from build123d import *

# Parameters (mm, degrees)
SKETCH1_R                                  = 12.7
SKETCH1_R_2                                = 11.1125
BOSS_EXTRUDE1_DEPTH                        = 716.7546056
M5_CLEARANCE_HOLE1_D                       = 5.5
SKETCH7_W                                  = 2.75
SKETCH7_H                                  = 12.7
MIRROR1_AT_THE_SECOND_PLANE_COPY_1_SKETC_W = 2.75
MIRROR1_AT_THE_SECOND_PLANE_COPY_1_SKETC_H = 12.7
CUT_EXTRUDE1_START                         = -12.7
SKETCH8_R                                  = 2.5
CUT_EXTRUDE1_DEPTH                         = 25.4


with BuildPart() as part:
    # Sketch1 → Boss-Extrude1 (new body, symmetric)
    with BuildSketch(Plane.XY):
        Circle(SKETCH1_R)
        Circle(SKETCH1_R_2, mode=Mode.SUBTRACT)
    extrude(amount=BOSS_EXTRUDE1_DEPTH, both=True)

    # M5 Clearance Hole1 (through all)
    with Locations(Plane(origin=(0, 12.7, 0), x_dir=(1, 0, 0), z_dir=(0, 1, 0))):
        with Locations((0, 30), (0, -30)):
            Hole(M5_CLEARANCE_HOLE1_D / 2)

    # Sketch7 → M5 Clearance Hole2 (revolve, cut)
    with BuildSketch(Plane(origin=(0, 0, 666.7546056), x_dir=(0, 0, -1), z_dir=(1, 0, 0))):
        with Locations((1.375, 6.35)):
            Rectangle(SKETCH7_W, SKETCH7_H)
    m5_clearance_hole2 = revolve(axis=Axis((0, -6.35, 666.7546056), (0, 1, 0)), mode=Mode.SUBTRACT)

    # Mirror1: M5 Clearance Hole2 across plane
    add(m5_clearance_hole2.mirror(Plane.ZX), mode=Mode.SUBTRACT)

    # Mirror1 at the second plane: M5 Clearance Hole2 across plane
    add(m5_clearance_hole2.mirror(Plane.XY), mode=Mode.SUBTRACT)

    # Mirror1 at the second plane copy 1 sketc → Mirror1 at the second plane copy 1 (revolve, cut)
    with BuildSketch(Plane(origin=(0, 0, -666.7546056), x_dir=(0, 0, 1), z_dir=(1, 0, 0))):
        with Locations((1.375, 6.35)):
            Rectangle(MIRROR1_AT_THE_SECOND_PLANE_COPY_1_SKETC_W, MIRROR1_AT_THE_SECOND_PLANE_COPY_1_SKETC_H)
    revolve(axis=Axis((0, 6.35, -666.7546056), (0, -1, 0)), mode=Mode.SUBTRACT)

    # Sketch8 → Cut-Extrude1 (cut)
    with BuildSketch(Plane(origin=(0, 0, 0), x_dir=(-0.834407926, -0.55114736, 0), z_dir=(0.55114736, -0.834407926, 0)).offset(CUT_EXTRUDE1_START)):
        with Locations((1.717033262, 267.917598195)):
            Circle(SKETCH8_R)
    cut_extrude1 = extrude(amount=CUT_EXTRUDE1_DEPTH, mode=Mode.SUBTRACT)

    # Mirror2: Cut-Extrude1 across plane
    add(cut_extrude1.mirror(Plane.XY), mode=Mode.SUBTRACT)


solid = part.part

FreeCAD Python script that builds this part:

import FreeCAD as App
import Part
import Sketcher

V = App.Vector
Q = App.Units.Quantity

doc = App.newDocument("Part")
body = doc.addObject("PartDesign::Body", "Body")

# Sketch on XY plane
sketch1 = body.newObject("Sketcher::SketchObject", "Sketch")
sketch1.AttachmentSupport = (doc.getObject("XY_Plane"), [""])
sketch1.MapMode = "FlatFace"
sketch1.addGeometry([
    Part.Circle(V(0, 0, 0), V(0, 0, 1), 13),
    Part.Circle(V(0, 0, 0), V(0, 0, 1), 11),
], False)
sketch1.addConstraint([
    Sketcher.Constraint("Coincident", 0, 3, -1, 1),
    Sketcher.Constraint("Coincident", 1, 3, -1, 1),
    Sketcher.Constraint("Diameter", 0, Q("1 in")),
    Sketcher.Constraint("Diameter", 1, Q("0.875 in")),
])
pad1 = body.newObject("PartDesign::Pad", "Pad")
pad1.Profile = sketch1
pad1.Length = 1433.509211
pad1.Midplane = True

# Sketch on XZ plane
sketch2 = body.newObject("Sketcher::SketchObject", "Sketch001")
sketch2.AttachmentSupport = (doc.getObject("XZ_Plane"), [""])
sketch2.MapMode = "FlatFace"
sketch2.AttachmentOffset = App.Placement(V(0, 0, -0.5 * 25.4), App.Rotation())
sketch2.addGeometry([
    Part.Circle(V(0, -30, 0), V(0, 0, 1), 2.8),
    Part.Circle(V(0, 30, 0), V(0, 0, 1), 2.8),
], False)
sketch2.addConstraint([
    Sketcher.Constraint("Equal", 0, 1),
    Sketcher.Constraint("Symmetric", 0, 3, 1, 3, -1, 1),
    Sketcher.Constraint("PointOnObject", 0, 3, -2),
    Sketcher.Constraint("Diameter", 0, Q("5.5 mm")),
    Sketcher.Constraint("DistanceY", 0, 3, -1, 1, Q("30 mm")),
])
doc.recompute()
hole = body.newObject("PartDesign::Hole", "Hole")
hole.Profile = sketch2
hole.ThreadType = "None"
hole.Diameter = 5.5
hole.DepthType = "ThroughAll"
hole.Reversed = True

# Sketch on YZ plane
sketch3 = body.newObject("Sketcher::SketchObject", "Sketch002")
sketch3.AttachmentSupport = (doc.getObject("YZ_Plane"), [""])
sketch3.MapMode = "FlatFace"
sketch3.addGeometry([
    Part.LineSegment(V(12.7, 666.8, 0), V(0, 666.8, 0)),
    Part.LineSegment(V(0, 666.8, 0), V(0, 664, 0)),
    Part.LineSegment(V(0, 664, 0), V(12.7, 664, 0)),
    Part.LineSegment(V(12.7, 664, 0), V(12.7, 666.8, 0)),
], False)
sketch3.addGeometry(Part.LineSegment(V(0, 666.8, 0), V(12.7, 666.8, 0)), True)  # axis
sketch3.addConstraint([
    Sketcher.Constraint("Coincident", 0, 2, 1, 1),
    Sketcher.Constraint("Coincident", 1, 2, 2, 1),
    Sketcher.Constraint("Coincident", 2, 2, 3, 1),
    Sketcher.Constraint("Coincident", 3, 2, 0, 1),
    Sketcher.Constraint("Horizontal", 0),
    Sketcher.Constraint("Vertical", 1),
    Sketcher.Constraint("Horizontal", 2),
    Sketcher.Constraint("Vertical", 3),
    Sketcher.Constraint("Horizontal", 4),
    Sketcher.Constraint("Coincident", 4, 1, 0, 2),
    Sketcher.Constraint("PointOnObject", 0, 2, -2),
    Sketcher.Constraint("Vertical", 2, 2, 4, 2),
    Sketcher.Constraint("DistanceX", 0, 2, 0, 1, Q("0.5 in")),
    Sketcher.Constraint("DistanceY", 1, 2, 1, 1, Q("2.75 mm")),
    Sketcher.Constraint("DistanceY", -1, 1, 0, 2, Q("666.754606 mm")),
])
groove = body.newObject("PartDesign::Groove", "Groove")
groove.Profile = sketch3
groove.ReferenceAxis = (sketch3, ["Axis0"])
groove.Angle = 360
doc.recompute()

mirrored = body.newObject("PartDesign::Mirrored", "Mirrored")
mirrored.Originals = [groove]
mirrored.MirrorPlane = (doc.getObject("XZ_Plane"), [""])
body.Tip = mirrored
doc.recompute()

mirrored2 = body.newObject("PartDesign::Mirrored", "Mirrored001")
mirrored2.Originals = [groove]
mirrored2.MirrorPlane = (doc.getObject("XY_Plane"), [""])
body.Tip = mirrored2

# Sketch on YZ plane
sketch4 = body.newObject("Sketcher::SketchObject", "Sketch003")
sketch4.AttachmentSupport = (doc.getObject("YZ_Plane"), [""])
sketch4.MapMode = "FlatFace"
sketch4.addGeometry([
    Part.LineSegment(V(-12.7, -666.8, 0), V(0, -666.8, 0)),
    Part.LineSegment(V(0, -666.8, 0), V(0, -664, 0)),
    Part.LineSegment(V(0, -664, 0), V(-12.7, -664, 0)),
    Part.LineSegment(V(-12.7, -664, 0), V(-12.7, -666.8, 0)),
], False)
sketch4.addGeometry(Part.LineSegment(V(0, -666.8, 0), V(-12.7, -666.8, 0)), True)  # axis
sketch4.addConstraint([
    Sketcher.Constraint("Coincident", 0, 2, 1, 1),
    Sketcher.Constraint("Coincident", 1, 2, 2, 1),
    Sketcher.Constraint("Coincident", 2, 2, 3, 1),
    Sketcher.Constraint("Coincident", 3, 2, 0, 1),
    Sketcher.Constraint("Horizontal", 0),
    Sketcher.Constraint("Vertical", 1),
    Sketcher.Constraint("Horizontal", 2),
    Sketcher.Constraint("Vertical", 3),
    Sketcher.Constraint("Horizontal", 4),
    Sketcher.Constraint("Coincident", 4, 1, 0, 2),
    Sketcher.Constraint("PointOnObject", 0, 2, -2),
    Sketcher.Constraint("Vertical", 2, 2, 4, 2),
    Sketcher.Constraint("DistanceX", 0, 1, 0, 2, Q("0.5 in")),
    Sketcher.Constraint("DistanceY", 1, 1, 1, 2, Q("2.75 mm")),
    Sketcher.Constraint("DistanceY", 0, 2, -1, 1, Q("666.754606 mm")),
])
groove2 = body.newObject("PartDesign::Groove", "Groove001")
groove2.Profile = sketch4
groove2.ReferenceAxis = (sketch4, ["Axis0"])
groove2.Angle = 360

# Sketch on an angled plane
sketch5 = body.newObject("Sketcher::SketchObject", "Sketch004")
sketch5.Placement = App.Placement(V(-6.999571, 10.596981, 0), App.Rotation(V(-0.834407926, -0.55114736, 0), V(0, 0, -0.999999999), V(0.55114736, -0.834407926, 0), "ZXY"))
sketch5.addGeometry(Part.Circle(V(1.7, 267.9, 0), V(0, 0, 1), 2.5), False)
sketch5.addConstraint([
    Sketcher.Constraint("Diameter", 0, Q("5 mm")),
    Sketcher.Constraint("DistanceX", -1, 1, 0, 3, Q("1.717033 mm")),
    Sketcher.Constraint("DistanceY", -1, 1, 0, 3, Q("267.917598 mm")),
])
pocket1 = body.newObject("PartDesign::Pocket", "Pocket")
pocket1.Profile = sketch5
pocket1.Length = Q("1 in")
pocket1.Reversed = True
doc.recompute()

mirrored3 = body.newObject("PartDesign::Mirrored", "Mirrored002")
mirrored3.Originals = [pocket1]
mirrored3.MirrorPlane = (doc.getObject("XY_Plane"), [""])
body.Tip = mirrored3

doc.recompute()
